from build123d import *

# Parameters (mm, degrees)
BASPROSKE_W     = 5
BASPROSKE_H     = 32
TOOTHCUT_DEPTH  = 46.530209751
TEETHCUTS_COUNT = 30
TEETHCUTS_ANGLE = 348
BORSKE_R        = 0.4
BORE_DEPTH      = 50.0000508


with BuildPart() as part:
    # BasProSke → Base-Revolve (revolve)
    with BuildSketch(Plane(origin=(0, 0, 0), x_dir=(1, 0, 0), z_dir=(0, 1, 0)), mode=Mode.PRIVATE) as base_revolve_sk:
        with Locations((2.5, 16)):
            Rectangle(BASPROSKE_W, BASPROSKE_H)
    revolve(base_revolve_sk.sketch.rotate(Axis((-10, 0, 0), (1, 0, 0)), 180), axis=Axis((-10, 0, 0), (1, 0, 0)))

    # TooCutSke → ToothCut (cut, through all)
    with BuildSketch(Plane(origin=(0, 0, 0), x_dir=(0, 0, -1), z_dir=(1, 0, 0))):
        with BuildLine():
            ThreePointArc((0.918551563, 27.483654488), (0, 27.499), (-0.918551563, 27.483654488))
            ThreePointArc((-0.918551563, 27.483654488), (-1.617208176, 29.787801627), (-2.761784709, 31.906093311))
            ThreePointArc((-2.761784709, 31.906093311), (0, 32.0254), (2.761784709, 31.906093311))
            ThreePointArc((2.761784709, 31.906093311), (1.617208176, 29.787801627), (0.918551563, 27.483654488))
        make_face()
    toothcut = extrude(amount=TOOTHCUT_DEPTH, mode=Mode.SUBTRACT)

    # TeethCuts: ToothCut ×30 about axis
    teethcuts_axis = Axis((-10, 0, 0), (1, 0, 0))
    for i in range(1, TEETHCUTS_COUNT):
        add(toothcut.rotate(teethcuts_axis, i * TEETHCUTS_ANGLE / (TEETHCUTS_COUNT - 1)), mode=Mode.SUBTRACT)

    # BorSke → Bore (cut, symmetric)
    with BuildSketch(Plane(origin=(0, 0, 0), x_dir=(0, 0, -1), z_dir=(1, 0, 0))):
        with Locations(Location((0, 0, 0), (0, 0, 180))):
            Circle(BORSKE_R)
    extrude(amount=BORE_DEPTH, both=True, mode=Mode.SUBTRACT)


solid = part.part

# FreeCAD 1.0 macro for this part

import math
import FreeCAD as App
import Part
import Sketcher

V = App.Vector


def add_polygon(sketch, points):
    """Adds a closed chain of lines whose ends are joined by coincident constraints."""
    first, n = sketch.GeometryCount, len(points)
    for a, b in zip(points, points[1:] + points[:1]):
        sketch.addGeometry(Part.LineSegment(App.Vector(*a, 0), App.Vector(*b, 0)), False)
    for i in range(n):
        sketch.addConstraint(Sketcher.Constraint("Coincident", first + i, 2, first + (i + 1) % n, 1))

doc = App.newDocument("Part")
body = doc.addObject("PartDesign::Body", "Body")

# Sketch on XZ plane
sketch1 = body.newObject("Sketcher::SketchObject", "Sketch")
sketch1.AttachmentSupport = (doc.getObject("XZ_Plane"), [""])
sketch1.MapMode = "FlatFace"
add_polygon(sketch1, [(0, -32), (0, 0), (5, 0), (5, -32)])  # lines 0-3
sketch1.addConstraint(Sketcher.Constraint("Vertical", 0))
sketch1.addConstraint(Sketcher.Constraint("Horizontal", 1))
sketch1.addConstraint(Sketcher.Constraint("Vertical", 2))
sketch1.addConstraint(Sketcher.Constraint("Horizontal", 3))
sketch1.addConstraint(Sketcher.Constraint("Coincident", 0, 2, -1, 1))
sketch1.addConstraint(Sketcher.Constraint("DistanceX", 1, 1, 1, 2, 5.0))
sketch1.addConstraint(Sketcher.Constraint("DistanceY", 0, 1, 0, 2, 32.0))
revolution = body.newObject("PartDesign::Revolution", "Revolution")
revolution.Profile = sketch1
revolution.ReferenceAxis = (sketch1, ["H_Axis"])
revolution.Angle = 360

# Sketch on YZ plane
sketch2 = body.newObject("Sketcher::SketchObject", "Sketch001")
sketch2.AttachmentSupport = (doc.getObject("YZ_Plane"), [""])
sketch2.MapMode = "FlatFace"
sketch2.addGeometry(Part.ArcOfCircle(Part.Circle(V(0, 0, 0), V(0, 0, 1), 27.499), math.radians(-1.914212), math.radians(1.914212)), False)
sketch2.addGeometry(Part.ArcOfCircle(Part.Circle(V(25.171243, -12.693642, 0), V(0, 0, 1), 12), math.radians(55.858574), math.radians(78.889547)), False)
sketch2.addGeometry(Part.ArcOfCircle(Part.Circle(V(0, 0, 0), V(0, 0, 1), 32.0254), math.radians(-4.947179), math.radians(4.947179)), False)
sketch2.addGeometry(Part.ArcOfCircle(Part.Circle(V(25.171243, 12.693642, 0), V(0, 0, 1), 12), math.radians(-78.889547), math.radians(-55.858574)), False)
sketch2.addConstraint(Sketcher.Constraint("Coincident", 0, 1, 1, 2))
sketch2.addConstraint(Sketcher.Constraint("Coincident", 1, 1, 2, 1))
sketch2.addConstraint(Sketcher.Constraint("Coincident", 2, 2, 3, 2))
sketch2.addConstraint(Sketcher.Constraint("Coincident", 3, 1, 0, 2))
sketch2.addConstraint(Sketcher.Constraint("Coincident", 0, 3, -1, 1))
sketch2.addConstraint(Sketcher.Constraint("Coincident", 2, 3, -1, 1))
sketch2.addConstraint(Sketcher.Constraint("Equal", 1, 3))
sketch2.addConstraint(Sketcher.Constraint("Symmetric", 1, 3, 3, 3, -1))
sketch2.addConstraint(Sketcher.Constraint("Radius", 1, 12.0))
sketch2.addConstraint(Sketcher.Constraint("Radius", 0, 27.499))
sketch2.addConstraint(Sketcher.Constraint("Radius", 2, 32.0254))
sketch2.addConstraint(Sketcher.Constraint("DistanceY", 1, 3, -1, 1, 12.693642))
sketch2.addConstraint(Sketcher.Constraint("DistanceY", 0, 1, -1, 1, 0.918552))
pocket1 = body.newObject("PartDesign::Pocket", "Pocket")
pocket1.Profile = sketch2
pocket1.Type = "ThroughAll"
pocket1.Reversed = True
doc.recompute()

polarpattern = body.newObject("PartDesign::PolarPattern", "PolarPattern")
polarpattern.Originals = [pocket1]
polarpattern.Axis = (doc.getObject("X_Axis"), [""])
polarpattern.Angle = 360
polarpattern.Occurrences = 30
body.Tip = polarpattern

# Sketch on YZ plane
sketch3 = body.newObject("Sketcher::SketchObject", "Sketch002")
sketch3.AttachmentSupport = (doc.getObject("YZ_Plane"), [""])
sketch3.MapMode = "FlatFace"
sketch3.addGeometry(Part.Circle(V(0, 0, 0), V(0, 0, 1), 0.4), False)
sketch3.addConstraint(Sketcher.Constraint("Coincident", 0, 3, -1, 1))
sketch3.addConstraint(Sketcher.Constraint("Diameter", 0, 0.8))
pocket2 = body.newObject("PartDesign::Pocket", "Pocket001")
pocket2.Profile = sketch3
pocket2.Length = 100.000102
pocket2.Midplane = True

doc.recompute()
